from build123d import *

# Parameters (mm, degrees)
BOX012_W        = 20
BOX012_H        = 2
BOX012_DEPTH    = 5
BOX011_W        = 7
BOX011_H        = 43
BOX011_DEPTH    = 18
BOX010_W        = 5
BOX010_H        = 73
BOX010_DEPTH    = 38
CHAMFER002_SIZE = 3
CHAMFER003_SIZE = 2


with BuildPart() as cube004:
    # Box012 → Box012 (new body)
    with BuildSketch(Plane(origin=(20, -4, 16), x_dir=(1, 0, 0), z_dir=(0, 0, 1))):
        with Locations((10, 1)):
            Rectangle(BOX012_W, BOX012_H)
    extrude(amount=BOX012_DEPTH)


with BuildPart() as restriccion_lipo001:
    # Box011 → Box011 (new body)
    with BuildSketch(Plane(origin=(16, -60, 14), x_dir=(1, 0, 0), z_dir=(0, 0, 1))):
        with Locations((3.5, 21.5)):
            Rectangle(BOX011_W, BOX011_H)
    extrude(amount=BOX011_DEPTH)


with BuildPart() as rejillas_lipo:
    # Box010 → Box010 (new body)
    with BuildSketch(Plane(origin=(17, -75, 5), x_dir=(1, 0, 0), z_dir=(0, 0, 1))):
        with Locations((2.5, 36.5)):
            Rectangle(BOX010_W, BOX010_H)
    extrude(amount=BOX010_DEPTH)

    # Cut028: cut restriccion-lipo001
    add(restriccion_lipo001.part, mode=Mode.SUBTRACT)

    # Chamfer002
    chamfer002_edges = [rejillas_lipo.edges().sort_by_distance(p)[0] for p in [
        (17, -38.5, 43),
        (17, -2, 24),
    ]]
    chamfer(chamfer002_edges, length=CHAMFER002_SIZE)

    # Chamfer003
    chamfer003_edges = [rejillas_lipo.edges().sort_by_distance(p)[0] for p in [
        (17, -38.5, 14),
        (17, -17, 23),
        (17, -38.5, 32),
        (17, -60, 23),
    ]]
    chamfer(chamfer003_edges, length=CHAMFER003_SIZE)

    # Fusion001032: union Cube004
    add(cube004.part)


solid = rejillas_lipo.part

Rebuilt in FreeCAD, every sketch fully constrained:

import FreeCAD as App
import Part
import Sketcher


def edges_at(feature, points):
    """Names of the edges that pass closest to the given points."""
    edges = feature.Shape.Edges
    near = lambda p: min(range(len(edges)), key=lambda i: edges[i].distToShape(Part.Vertex(*p))[0])
    return sorted({f"Edge{near(p) + 1}" for p in points})

doc = App.newDocument("Part")
body = doc.addObject("PartDesign::Body", "Body")

# Sketch on XY plane
sketch1 = body.newObject("Sketcher::SketchObject", "Sketch")
sketch1.AttachmentSupport = (doc.getObject("XY_Plane"), [""])
sketch1.MapMode = "FlatFace"
sketch1.AttachmentOffset = App.Placement(App.Vector(0, 0, 16), App.Rotation())
sketch1.addGeometry([
    Part.LineSegment(App.Vector(20, -2, 0), App.Vector(20, -4, 0)),
    Part.LineSegment(App.Vector(20, -4, 0), App.Vector(40, -4, 0)),
    Part.LineSegment(App.Vector(40, -4, 0), App.Vector(40, -2, 0)),
    Part.LineSegment(App.Vector(40, -2, 0), App.Vector(20, -2, 0)),
], False)
sketch1.addConstraint([
    Sketcher.Constraint("Coincident", 0, 2, 1, 1),
    Sketcher.Constraint("Coincident", 1, 2, 2, 1),
    Sketcher.Constraint("Coincident", 2, 2, 3, 1),
    Sketcher.Constraint("Coincident", 3, 2, 0, 1),
    Sketcher.Constraint("Vertical", 0),
    Sketcher.Constraint("Horizontal", 1),
    Sketcher.Constraint("Vertical", 2),
    Sketcher.Constraint("Horizontal", 3),
    Sketcher.Constraint("DistanceX", 1, 1, 1, 2, 20.0),
    Sketcher.Constraint("DistanceY", 0, 2, 0, 1, 2.0),
    Sketcher.Constraint("DistanceX", -1, 1, 0, 2, 20.0),
    Sketcher.Constraint("DistanceY", 0, 2, -1, 1, 4.0),
])
pad1 = body.newObject("PartDesign::Pad", "Pad")
pad1.Profile = sketch1
pad1.Length = 5
body2 = doc.addObject("PartDesign::Body", "Body001")

# Sketch on XY plane
sketch2 = body2.newObject("Sketcher::SketchObject", "Sketch001")
sketch2.AttachmentSupport = (doc.getObject("XY_Plane001"), [""])
sketch2.MapMode = "FlatFace"
sketch2.AttachmentOffset = App.Placement(App.Vector(0, 0, 14), App.Rotation())
sketch2.addGeometry([
    Part.LineSegment(App.Vector(16, -17, 0), App.Vector(16, -60, 0)),
    Part.LineSegment(App.Vector(16, -60, 0), App.Vector(23, -60, 0)),
    Part.LineSegment(App.Vector(23, -60, 0), App.Vector(23, -17, 0)),
    Part.LineSegment(App.Vector(23, -17, 0), App.Vector(16, -17, 0)),
], False)
sketch2.addConstraint([
    Sketcher.Constraint("Coincident", 0, 2, 1, 1),
    Sketcher.Constraint("Coincident", 1, 2, 2, 1),
    Sketcher.Constraint("Coincident", 2, 2, 3, 1),
    Sketcher.Constraint("Coincident", 3, 2, 0, 1),
    Sketcher.Constraint("Vertical", 0),
    Sketcher.Constraint("Horizontal", 1),
    Sketcher.Constraint("Vertical", 2),
    Sketcher.Constraint("Horizontal", 3),
    Sketcher.Constraint("DistanceX", 1, 1, 1, 2, 7.0),
    Sketcher.Constraint("DistanceY", 0, 2, 0, 1, 43.0),
    Sketcher.Constraint("DistanceX", -1, 1, 0, 2, 16.0),
    Sketcher.Constraint("DistanceY", 0, 2, -1, 1, 60.0),
])
pad2 = body2.newObject("PartDesign::Pad", "Pad001")
pad2.Profile = sketch2
pad2.Length = 18
body3 = doc.addObject("PartDesign::Body", "Body002")

# Sketch on XY plane
sketch3 = body3.newObject("Sketcher::SketchObject", "Sketch002")
sketch3.AttachmentSupport = (doc.getObject("XY_Plane002"), [""])
sketch3.MapMode = "FlatFace"
sketch3.AttachmentOffset = App.Placement(App.Vector(0, 0, 5), App.Rotation())
sketch3.addGeometry([
    Part.LineSegment(App.Vector(17, -2, 0), App.Vector(17, -75, 0)),
    Part.LineSegment(App.Vector(17, -75, 0), App.Vector(22, -75, 0)),
    Part.LineSegment(App.Vector(22, -75, 0), App.Vector(22, -2, 0)),
    Part.LineSegment(App.Vector(22, -2, 0), App.Vector(17, -2, 0)),
], False)
sketch3.addConstraint([
    Sketcher.Constraint("Coincident", 0, 2, 1, 1),
    Sketcher.Constraint("Coincident", 1, 2, 2, 1),
    Sketcher.Constraint("Coincident", 2, 2, 3, 1),
    Sketcher.Constraint("Coincident", 3, 2, 0, 1),
    Sketcher.Constraint("Vertical", 0),
    Sketcher.Constraint("Horizontal", 1),
    Sketcher.Constraint("Vertical", 2),
    Sketcher.Constraint("Horizontal", 3),
    Sketcher.Constraint("DistanceX", 1, 1, 1, 2, 5.0),
    Sketcher.Constraint("DistanceY", 0, 2, 0, 1, 73.0),
    Sketcher.Constraint("DistanceX", -1, 1, 0, 2, 17.0),
    Sketcher.Constraint("DistanceY", 0, 2, -1, 1, 75.0),
])
pad3 = body3.newObject("PartDesign::Pad", "Pad002")
pad3.Profile = sketch3
pad3.Length = 38
doc.recompute()

boolean = body3.newObject("PartDesign::Boolean", "Boolean")
boolean.Type = "Cut"
boolean.addObjects([body2])
doc.recompute()

chamfer = body3.newObject("PartDesign::Chamfer", "Chamfer")
chamfer.Base = (boolean, edges_at(boolean, [(17, -38.5, 43), (17, -2, 24)]))
chamfer.Size = 3
doc.recompute()

chamfer2 = body3.newObject("PartDesign::Chamfer", "Chamfer001")
chamfer2.Base = (chamfer, edges_at(chamfer, [
    (17, -38.5, 14),
    (17, -17, 23),
    (17, -38.5, 32),
    (17, -60, 23),
]))
chamfer2.Size = 2
doc.recompute()

boolean2 = body3.newObject("PartDesign::Boolean", "Boolean001")
boolean2.Type = "Fuse"
boolean2.addObjects([body])

doc.recompute()
